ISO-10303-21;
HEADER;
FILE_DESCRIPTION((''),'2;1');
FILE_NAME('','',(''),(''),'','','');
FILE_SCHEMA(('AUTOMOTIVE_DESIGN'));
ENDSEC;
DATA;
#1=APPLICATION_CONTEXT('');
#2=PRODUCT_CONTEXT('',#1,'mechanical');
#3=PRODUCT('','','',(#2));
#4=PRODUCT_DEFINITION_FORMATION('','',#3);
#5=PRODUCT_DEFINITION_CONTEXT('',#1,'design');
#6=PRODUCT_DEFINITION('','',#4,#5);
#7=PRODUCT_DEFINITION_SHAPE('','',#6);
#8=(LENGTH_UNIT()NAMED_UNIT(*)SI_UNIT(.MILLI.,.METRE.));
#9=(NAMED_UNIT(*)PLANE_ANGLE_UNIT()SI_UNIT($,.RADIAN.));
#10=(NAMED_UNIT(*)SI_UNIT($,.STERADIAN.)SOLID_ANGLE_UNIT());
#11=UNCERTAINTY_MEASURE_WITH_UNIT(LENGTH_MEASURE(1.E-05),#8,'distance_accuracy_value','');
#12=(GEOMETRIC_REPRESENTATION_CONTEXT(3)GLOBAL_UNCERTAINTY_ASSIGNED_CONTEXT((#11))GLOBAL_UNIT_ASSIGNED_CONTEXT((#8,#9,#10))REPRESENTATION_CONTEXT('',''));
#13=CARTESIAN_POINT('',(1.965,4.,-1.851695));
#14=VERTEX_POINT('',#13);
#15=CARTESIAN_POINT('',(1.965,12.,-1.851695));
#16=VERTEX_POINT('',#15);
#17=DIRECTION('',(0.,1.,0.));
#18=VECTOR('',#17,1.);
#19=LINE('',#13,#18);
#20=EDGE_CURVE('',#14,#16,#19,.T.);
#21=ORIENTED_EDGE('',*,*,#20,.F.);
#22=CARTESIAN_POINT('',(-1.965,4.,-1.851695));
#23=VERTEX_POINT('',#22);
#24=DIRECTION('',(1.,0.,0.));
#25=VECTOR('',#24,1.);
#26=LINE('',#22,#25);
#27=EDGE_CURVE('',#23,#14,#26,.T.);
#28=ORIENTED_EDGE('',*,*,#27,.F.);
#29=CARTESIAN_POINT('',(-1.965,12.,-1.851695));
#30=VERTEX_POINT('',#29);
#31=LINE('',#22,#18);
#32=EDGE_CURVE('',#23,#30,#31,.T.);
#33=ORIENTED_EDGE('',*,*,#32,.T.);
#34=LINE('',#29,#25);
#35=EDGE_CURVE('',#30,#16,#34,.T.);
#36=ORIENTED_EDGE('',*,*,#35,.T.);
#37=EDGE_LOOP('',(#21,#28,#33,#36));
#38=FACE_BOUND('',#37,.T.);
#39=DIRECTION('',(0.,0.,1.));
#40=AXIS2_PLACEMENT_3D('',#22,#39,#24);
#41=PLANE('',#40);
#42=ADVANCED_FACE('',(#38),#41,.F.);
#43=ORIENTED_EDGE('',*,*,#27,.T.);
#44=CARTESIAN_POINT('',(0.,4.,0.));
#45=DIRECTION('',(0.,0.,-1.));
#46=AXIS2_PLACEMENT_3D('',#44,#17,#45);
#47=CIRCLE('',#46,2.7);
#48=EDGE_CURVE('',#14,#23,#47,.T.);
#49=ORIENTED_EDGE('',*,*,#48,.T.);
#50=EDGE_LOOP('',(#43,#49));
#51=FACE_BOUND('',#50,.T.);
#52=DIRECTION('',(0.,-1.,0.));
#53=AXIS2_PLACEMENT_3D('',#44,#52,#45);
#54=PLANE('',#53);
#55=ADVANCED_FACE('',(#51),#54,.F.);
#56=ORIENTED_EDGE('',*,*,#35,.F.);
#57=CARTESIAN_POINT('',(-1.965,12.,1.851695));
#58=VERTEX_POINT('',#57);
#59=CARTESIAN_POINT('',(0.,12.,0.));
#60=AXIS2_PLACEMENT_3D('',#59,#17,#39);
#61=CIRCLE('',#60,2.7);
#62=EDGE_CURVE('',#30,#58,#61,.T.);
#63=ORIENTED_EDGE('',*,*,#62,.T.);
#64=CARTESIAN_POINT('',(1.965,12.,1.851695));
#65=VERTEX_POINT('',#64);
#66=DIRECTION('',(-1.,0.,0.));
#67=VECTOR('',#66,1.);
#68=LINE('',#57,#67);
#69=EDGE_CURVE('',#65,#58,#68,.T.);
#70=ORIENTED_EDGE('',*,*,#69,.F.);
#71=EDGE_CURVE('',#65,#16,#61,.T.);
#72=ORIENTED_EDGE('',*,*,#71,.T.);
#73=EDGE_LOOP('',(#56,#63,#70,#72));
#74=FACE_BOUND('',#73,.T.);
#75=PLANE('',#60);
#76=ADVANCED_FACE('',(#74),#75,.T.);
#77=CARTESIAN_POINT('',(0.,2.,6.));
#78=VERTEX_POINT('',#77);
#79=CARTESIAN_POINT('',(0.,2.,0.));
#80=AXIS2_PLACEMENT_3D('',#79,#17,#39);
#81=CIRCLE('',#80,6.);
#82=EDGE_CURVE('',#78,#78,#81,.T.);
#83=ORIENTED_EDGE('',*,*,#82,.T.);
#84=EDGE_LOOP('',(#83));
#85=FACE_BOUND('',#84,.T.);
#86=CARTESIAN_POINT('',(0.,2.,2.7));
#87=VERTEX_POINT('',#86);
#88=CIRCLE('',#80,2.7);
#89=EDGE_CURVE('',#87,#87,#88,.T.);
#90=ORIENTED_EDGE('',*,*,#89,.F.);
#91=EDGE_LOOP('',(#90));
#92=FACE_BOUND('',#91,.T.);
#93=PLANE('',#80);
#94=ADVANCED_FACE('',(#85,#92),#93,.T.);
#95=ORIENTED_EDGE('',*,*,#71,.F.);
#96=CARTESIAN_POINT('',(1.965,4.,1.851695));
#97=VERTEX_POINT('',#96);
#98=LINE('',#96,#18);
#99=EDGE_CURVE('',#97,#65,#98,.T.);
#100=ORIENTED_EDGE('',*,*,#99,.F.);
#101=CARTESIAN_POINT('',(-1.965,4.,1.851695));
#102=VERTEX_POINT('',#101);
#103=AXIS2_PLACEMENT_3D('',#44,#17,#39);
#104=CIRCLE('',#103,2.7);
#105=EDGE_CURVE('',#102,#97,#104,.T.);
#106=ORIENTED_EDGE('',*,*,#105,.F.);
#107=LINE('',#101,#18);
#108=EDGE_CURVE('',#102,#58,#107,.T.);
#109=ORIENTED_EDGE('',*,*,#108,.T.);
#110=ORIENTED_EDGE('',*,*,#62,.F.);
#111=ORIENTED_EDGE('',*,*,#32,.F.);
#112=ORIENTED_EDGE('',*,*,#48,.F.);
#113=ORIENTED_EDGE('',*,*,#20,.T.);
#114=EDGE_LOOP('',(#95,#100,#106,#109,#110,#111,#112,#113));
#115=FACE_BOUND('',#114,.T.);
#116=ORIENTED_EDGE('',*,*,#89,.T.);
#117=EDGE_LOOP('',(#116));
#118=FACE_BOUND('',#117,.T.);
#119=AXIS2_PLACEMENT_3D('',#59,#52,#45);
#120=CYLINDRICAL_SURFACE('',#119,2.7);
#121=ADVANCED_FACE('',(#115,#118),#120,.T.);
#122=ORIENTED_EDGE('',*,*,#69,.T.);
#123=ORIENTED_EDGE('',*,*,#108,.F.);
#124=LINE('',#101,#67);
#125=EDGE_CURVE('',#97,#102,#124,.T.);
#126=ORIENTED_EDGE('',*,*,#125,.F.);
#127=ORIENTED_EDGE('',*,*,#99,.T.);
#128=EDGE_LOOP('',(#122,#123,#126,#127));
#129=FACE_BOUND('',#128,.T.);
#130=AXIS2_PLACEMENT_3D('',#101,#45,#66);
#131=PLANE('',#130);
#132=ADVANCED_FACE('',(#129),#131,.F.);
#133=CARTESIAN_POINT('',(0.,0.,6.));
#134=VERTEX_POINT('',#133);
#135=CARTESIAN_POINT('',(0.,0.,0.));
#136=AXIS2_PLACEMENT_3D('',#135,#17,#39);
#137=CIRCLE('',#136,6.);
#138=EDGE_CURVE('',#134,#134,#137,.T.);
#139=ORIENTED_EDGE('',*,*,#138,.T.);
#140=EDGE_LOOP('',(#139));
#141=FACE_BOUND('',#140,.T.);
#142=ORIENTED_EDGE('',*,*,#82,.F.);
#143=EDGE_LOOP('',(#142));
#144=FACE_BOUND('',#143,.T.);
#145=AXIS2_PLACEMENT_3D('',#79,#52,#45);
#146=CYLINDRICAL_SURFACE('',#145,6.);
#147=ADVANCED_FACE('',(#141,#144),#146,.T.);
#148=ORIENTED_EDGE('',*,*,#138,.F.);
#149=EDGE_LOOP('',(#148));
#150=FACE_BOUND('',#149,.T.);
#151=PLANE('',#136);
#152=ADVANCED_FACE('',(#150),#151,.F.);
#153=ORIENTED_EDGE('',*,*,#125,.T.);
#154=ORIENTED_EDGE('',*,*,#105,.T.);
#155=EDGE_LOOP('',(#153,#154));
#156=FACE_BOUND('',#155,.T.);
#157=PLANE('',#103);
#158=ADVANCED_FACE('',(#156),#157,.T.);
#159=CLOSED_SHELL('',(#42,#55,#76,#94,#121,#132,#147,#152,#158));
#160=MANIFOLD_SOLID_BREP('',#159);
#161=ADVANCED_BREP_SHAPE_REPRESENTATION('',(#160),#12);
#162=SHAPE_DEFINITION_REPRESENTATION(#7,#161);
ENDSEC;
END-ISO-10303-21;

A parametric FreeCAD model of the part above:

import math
import FreeCAD as App
import Part
import Sketcher
from FreeCAD import Vector

doc = App.newDocument("Part")
params = doc.addObject("Spreadsheet::Sheet", "Params")
for row, (alias, value) in enumerate([
    ("sketch1_diameter", "12 mm"),
    ("pad1_length", "2 mm"),
    ("sketch2_diameter", "5.4 mm"),
    ("pad2_length", "10 mm"),
    ("sketch3_radius", "2.7 mm"),
    ("sketch3_width", "3.93 mm"),
    ("pocket1_length", "8 mm"),
], start=1):
    params.set(f"A{row}", alias)
    params.set(f"B{row}", "=" + value)
    params.setAlias(f"B{row}", alias)

body = doc.addObject("PartDesign::Body", "Body")

sketch1 = body.newObject("Sketcher::SketchObject", "Sketch")
sketch1.AttachmentSupport = (doc.getObject("XZ_Plane"), [""])
sketch1.MapMode = "FlatFace"
sketch1.addGeometry(Part.Circle(Vector(0, 0, 0), Vector(0, 0, 1), 6), False)
sketch1.addConstraint([
    Sketcher.Constraint("Coincident", 0, 3, -1, 1),
    Sketcher.Constraint("Diameter", 0, 12.0),
])
sketch1.setExpression("Constraints[1]", "Params.sketch1_diameter")
pad1 = body.newObject("PartDesign::Pad", "Pad")
pad1.Profile = sketch1
pad1.setExpression("Length", "Params.pad1_length")
pad1.Reversed = True

sketch2 = body.newObject("Sketcher::SketchObject", "Sketch001")
sketch2.AttachmentSupport = (doc.getObject("XZ_Plane"), [""])
sketch2.MapMode = "FlatFace"
sketch2.AttachmentOffset = App.Placement(Vector(0, 0, -2), App.Rotation())
sketch2.addGeometry(Part.Circle(Vector(0, 0, 0), Vector(0, 0, 1), 2.7), False)
sketch2.addConstraint([
    Sketcher.Constraint("Coincident", 0, 3, -1, 1),
    Sketcher.Constraint("Diameter", 0, 5.4),
])
sketch2.setExpression("Constraints[1]", "Params.sketch2_diameter")
pad2 = body.newObject("PartDesign::Pad", "Pad001")
pad2.Profile = sketch2
pad2.setExpression("Length", "Params.pad2_length")
pad2.Reversed = True

sketch3 = body.newObject("Sketcher::SketchObject", "Sketch002")
sketch3.AttachmentSupport = (doc.getObject("XZ_Plane"), [""])
sketch3.MapMode = "FlatFace"
sketch3.AttachmentOffset = App.Placement(Vector(0, 0, -12), App.Rotation())
sketch3.addGeometry([
    Part.LineSegment(Vector(-2, -1.9, 0), Vector(2, -1.9, 0)),
    Part.ArcOfCircle(Part.Circle(Vector(0, 0, 0), Vector(0, 0, 1), 2.7), math.radians(-137), math.radians(-43)),
    Part.LineSegment(Vector(2, 1.9, 0), Vector(-2, 1.9, 0)),
    Part.ArcOfCircle(Part.Circle(Vector(0, 0, 0), Vector(0, 0, 1), 2.7), math.radians(43), math.radians(137)),
], False)
sketch3.addConstraint([
    Sketcher.Constraint("Coincident", 0, 1, 1, 1),
    Sketcher.Constraint("Coincident", 1, 2, 0, 2),
    Sketcher.Constraint("Coincident", 2, 1, 3, 1),
    Sketcher.Constraint("Coincident", 3, 2, 2, 2),
    Sketcher.Constraint("Horizontal", 0),
    Sketcher.Constraint("Horizontal", 2),
    Sketcher.Constraint("Coincident", 1, 3, -1, 1),
    Sketcher.Constraint("Coincident", 3, 3, -1, 1),
    Sketcher.Constraint("Equal", 1, 3),
    Sketcher.Constraint("Vertical", 1, 2, 2, 1),
    Sketcher.Constraint("Radius", 1, 2.7),
    Sketcher.Constraint("DistanceX", 0, 1, 0, 2, 3.93),
])
sketch3.setExpression("Constraints[10]", "Params.sketch3_radius")
sketch3.setExpression("Constraints[11]", "Params.sketch3_width")
pocket1 = body.newObject("PartDesign::Pocket", "Pocket")
pocket1.Profile = sketch3
pocket1.setExpression("Length", "Params.pocket1_length")
pocket1.Reversed = True

doc.recompute()
